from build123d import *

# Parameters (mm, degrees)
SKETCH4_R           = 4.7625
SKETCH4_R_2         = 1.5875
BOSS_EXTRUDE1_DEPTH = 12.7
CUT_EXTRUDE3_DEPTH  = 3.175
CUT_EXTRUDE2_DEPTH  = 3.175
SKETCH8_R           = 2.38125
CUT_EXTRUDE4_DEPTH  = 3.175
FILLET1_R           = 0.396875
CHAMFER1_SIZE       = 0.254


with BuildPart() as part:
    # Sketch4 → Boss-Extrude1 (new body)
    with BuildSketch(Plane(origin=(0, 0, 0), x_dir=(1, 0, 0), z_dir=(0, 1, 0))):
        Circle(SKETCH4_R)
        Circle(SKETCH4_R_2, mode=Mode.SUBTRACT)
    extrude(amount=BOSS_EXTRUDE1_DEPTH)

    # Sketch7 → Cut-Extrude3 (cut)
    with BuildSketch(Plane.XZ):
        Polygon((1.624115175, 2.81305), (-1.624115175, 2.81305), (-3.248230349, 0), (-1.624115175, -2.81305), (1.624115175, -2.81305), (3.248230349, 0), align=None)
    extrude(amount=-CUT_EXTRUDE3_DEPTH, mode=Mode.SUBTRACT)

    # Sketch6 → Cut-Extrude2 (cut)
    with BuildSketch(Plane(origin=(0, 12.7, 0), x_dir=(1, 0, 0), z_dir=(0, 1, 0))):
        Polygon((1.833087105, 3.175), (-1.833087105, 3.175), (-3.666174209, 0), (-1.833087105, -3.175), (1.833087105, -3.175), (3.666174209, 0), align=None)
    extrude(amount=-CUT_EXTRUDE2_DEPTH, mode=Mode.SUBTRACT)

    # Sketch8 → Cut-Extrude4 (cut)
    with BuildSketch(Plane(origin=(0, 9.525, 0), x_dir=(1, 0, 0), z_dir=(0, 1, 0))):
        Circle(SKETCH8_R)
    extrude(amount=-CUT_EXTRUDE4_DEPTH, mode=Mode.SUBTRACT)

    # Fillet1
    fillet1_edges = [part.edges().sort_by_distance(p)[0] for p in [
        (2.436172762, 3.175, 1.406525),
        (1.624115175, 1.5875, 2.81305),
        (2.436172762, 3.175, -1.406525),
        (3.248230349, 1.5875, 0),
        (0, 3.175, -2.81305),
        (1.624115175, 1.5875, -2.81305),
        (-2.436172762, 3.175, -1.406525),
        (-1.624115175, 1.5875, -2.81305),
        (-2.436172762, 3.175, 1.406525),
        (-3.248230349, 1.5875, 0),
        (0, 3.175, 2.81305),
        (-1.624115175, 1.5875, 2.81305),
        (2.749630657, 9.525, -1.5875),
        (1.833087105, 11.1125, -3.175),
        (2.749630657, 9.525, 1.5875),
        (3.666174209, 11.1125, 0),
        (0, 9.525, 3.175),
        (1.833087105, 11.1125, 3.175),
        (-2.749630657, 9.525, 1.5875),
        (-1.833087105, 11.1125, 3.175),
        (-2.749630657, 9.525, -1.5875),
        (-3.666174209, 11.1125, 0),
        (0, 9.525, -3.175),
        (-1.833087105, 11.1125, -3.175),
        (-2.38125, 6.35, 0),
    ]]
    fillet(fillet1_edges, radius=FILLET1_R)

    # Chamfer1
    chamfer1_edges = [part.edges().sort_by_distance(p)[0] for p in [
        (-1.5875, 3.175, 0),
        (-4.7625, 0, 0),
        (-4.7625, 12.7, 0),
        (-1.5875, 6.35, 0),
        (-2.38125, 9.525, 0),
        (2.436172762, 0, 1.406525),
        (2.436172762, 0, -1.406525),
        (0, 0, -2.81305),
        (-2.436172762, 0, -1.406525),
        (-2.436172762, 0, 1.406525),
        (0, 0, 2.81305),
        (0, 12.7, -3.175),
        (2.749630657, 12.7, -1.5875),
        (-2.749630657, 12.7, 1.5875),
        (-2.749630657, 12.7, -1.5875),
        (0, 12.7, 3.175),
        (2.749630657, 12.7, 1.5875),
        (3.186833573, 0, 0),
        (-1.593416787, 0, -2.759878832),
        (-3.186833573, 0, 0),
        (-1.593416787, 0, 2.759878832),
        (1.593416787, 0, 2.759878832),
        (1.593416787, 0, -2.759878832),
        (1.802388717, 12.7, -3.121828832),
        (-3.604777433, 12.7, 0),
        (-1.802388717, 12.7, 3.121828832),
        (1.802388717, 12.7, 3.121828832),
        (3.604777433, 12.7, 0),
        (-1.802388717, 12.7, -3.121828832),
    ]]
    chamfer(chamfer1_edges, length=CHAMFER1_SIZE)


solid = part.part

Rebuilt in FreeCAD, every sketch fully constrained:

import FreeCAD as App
import Part
import Sketcher
Q = App.Units.Quantity


def edges_at(feature, points):
    """Names of the edges that pass closest to the given points."""
    edges = feature.Shape.Edges
    near = lambda p: min(range(len(edges)), key=lambda i: edges[i].distToShape(Part.Vertex(*p))[0])
    return sorted({f"Edge{near(p) + 1}" for p in points})


def add_polygon(sketch, points):
    """Adds a closed chain of lines whose ends are joined by coincident constraints."""
    first, n = sketch.GeometryCount, len(points)
    for a, b in zip(points, points[1:] + points[:1]):
        sketch.addGeometry(Part.LineSegment(App.Vector(*a, 0), App.Vector(*b, 0)), False)
    for i in range(n):
        sketch.addConstraint(Sketcher.Constraint("Coincident", first + i, 2, first + (i + 1) % n, 1))

doc = App.newDocument("Part")
body = doc.addObject("PartDesign::Body", "Body")

sketch1 = doc.addObject("Sketcher::SketchObject", "Sketch")
body.addObject(sketch1)
sketch1.AttachmentSupport = (doc.XZ_Plane, [""])
sketch1.MapMode = "FlatFace"
sketch1.addGeometry([
    Part.Circle(App.Vector(0, 0, 0), App.Vector(0, 0, 1), 4.8),
    Part.Circle(App.Vector(0, 0, 0), App.Vector(0, 0, 1), 1.6),
], False)
sketch1.addConstraint([
    Sketcher.Constraint("Coincident", 0, 3, -1, 1),
    Sketcher.Constraint("Coincident", 1, 3, -1, 1),
    Sketcher.Constraint("Diameter", 0, Q("0.375 in")),
    Sketcher.Constraint("Diameter", 1, Q("0.125 in")),
])
pad1 = doc.addObject("PartDesign::Pad", "Pad")
body.addObject(pad1)
pad1.Profile = sketch1
pad1.Length = Q("0.5 in")
pad1.Reversed = True

sketch2 = doc.addObject("Sketcher::SketchObject", "Sketch001")
body.addObject(sketch2)
sketch2.AttachmentSupport = (doc.XZ_Plane, [""])
sketch2.MapMode = "FlatFace"
add_polygon(sketch2, [(1.6, 2.8), (-1.6, 2.8), (-3.2, 0), (-1.6, -2.8), (1.6, -2.8), (3.2, 0)])
sketch2.addConstraint([
    Sketcher.Constraint("Horizontal", 0),
    Sketcher.Constraint("Horizontal", 3),
    Sketcher.Constraint("Symmetric", 0, 2, 3, 2, -1, 1),
    Sketcher.Constraint("Symmetric", 1, 2, 4, 2, -1, 1),
    Sketcher.Constraint("PointOnObject", 1, 2, -1),
    Sketcher.Constraint("Parallel", 2, 5),
    Sketcher.Constraint("Vertical", 0, 2, 2, 2),
    Sketcher.Constraint("Angle", 1, Q("-120 deg")),
    Sketcher.Constraint("DistanceY", 2, 2, 0, 2, Q("0.2215 in")),
    Sketcher.Constraint("DistanceX", 0, 2, 0, 1, 3.24823),
])
pocket1 = doc.addObject("PartDesign::Pocket", "Pocket")
body.addObject(pocket1)
pocket1.Profile = sketch2
pocket1.Length = Q("0.125 in")

sketch3 = doc.addObject("Sketcher::SketchObject", "Sketch002")
body.addObject(sketch3)
sketch3.AttachmentSupport = (doc.XZ_Plane, [""])
sketch3.MapMode = "FlatFace"
sketch3.AttachmentOffset = App.Placement(App.Vector(0, 0, -0.5 * 25.4), App.Rotation())
add_polygon(sketch3, [(1.8, -3.2), (-1.8, -3.2), (-3.7, 0), (-1.8, 3.2), (1.8, 3.2), (3.7, 0)])
sketch3.addConstraint([
    Sketcher.Constraint("Horizontal", 0),
    Sketcher.Constraint("Horizontal", 3),
    Sketcher.Constraint("Symmetric", 0, 2, 3, 2, -1, 1),
    Sketcher.Constraint("Symmetric", 1, 2, 4, 2, -1, 1),
    Sketcher.Constraint("PointOnObject", 1, 2, -1),
    Sketcher.Constraint("Parallel", 2, 5),
    Sketcher.Constraint("Vertical", 0, 2, 2, 2),
    Sketcher.Constraint("Angle", 1, Q("120 deg")),
    Sketcher.Constraint("DistanceY", 0, 2, 2, 2, Q("0.25 in")),
    Sketcher.Constraint("DistanceX", 0, 2, 0, 1, 3.666174),
])
pocket2 = doc.addObject("PartDesign::Pocket", "Pocket001")
body.addObject(pocket2)
pocket2.Profile = sketch3
pocket2.Length = Q("0.125 in")
pocket2.Reversed = True

sketch4 = doc.addObject("Sketcher::SketchObject", "Sketch003")
body.addObject(sketch4)
sketch4.AttachmentSupport = (doc.XZ_Plane, [""])
sketch4.MapMode = "FlatFace"
sketch4.AttachmentOffset = App.Placement(App.Vector(0, 0, -0.375 * 25.4), App.Rotation())
sketch4.addGeometry(Part.Circle(App.Vector(0, 0, 0), App.Vector(0, 0, 1), 2.4), False)
sketch4.addConstraint([
    Sketcher.Constraint("Coincident", 0, 3, -1, 1),
    Sketcher.Constraint("Diameter", 0, Q("0.1875 in")),
])
pocket3 = doc.addObject("PartDesign::Pocket", "Pocket002")
body.addObject(pocket3)
pocket3.Profile = sketch4
pocket3.Length = Q("0.125 in")
pocket3.Reversed = True
doc.recompute()

fillet = doc.addObject("PartDesign::Fillet", "Fillet")
body.addObject(fillet)
fillet.Base = (pocket3, edges_at(pocket3, [
    (2.436, 3.175, 1.407),
    (1.624, 1.587, 2.813),
    (2.436, 3.175, -1.407),
    (3.248, 1.587, 0),
    (0, 3.175, -2.813),
    (1.624, 1.587, -2.813),
    (-2.436, 3.175, -1.407),
    (-1.624, 1.587, -2.813),
    (-2.436, 3.175, 1.407),
    (-3.248, 1.587, 0),
    (0, 3.175, 2.813),
    (-1.624, 1.587, 2.813),
    (2.75, 9.525, -1.587),
    (1.833, 11.113, -3.175),
    (2.75, 9.525, 1.587),
    (3.666, 11.113, 0),
    (0, 9.525, 3.175),
    (1.833, 11.113, 3.175),
    (-2.75, 9.525, 1.587),
    (-1.833, 11.113, 3.175),
    (-2.75, 9.525, -1.587),
    (-3.666, 11.113, 0),
    (0, 9.525, -3.175),
    (-1.833, 11.113, -3.175),
    (-2.381, 6.35, 0),
]))
fillet.Radius = Q("0.015625 in")
doc.recompute()

chamfer = doc.addObject("PartDesign::Chamfer", "Chamfer")
body.addObject(chamfer)
chamfer.Base = (fillet, edges_at(fillet, [
    (-1.587, 3.175, 0),
    (-4.763, 0, 0),
    (-4.763, 12.7, 0),
    (-1.587, 6.35, 0),
    (-2.381, 9.525, 0),
    (2.436, 0, 1.407),
    (2.436, 0, -1.407),
    (0, 0, -2.813),
    (-2.436, 0, -1.407),
    (-2.436, 0, 1.407),
    (0, 0, 2.813),
    (0, 12.7, -3.175),
    (2.75, 12.7, -1.587),
    (-2.75, 12.7, 1.587),
    (-2.75, 12.7, -1.587),
    (0, 12.7, 3.175),
    (2.75, 12.7, 1.587),
    (3.187, 0, 0),
    (-1.593, 0, -2.76),
    (-3.187, 0, 0),
    (-1.593, 0, 2.76),
    (1.593, 0, 2.76),
    (1.593, 0, -2.76),
    (1.802, 12.7, -3.122),
    (-3.605, 12.7, 0),
    (-1.802, 12.7, 3.122),
    (1.802, 12.7, 3.122),
    (3.605, 12.7, 0),
    (-1.802, 12.7, -3.122),
]))
chamfer.Size = Q("0.01 in")

doc.recompute()
